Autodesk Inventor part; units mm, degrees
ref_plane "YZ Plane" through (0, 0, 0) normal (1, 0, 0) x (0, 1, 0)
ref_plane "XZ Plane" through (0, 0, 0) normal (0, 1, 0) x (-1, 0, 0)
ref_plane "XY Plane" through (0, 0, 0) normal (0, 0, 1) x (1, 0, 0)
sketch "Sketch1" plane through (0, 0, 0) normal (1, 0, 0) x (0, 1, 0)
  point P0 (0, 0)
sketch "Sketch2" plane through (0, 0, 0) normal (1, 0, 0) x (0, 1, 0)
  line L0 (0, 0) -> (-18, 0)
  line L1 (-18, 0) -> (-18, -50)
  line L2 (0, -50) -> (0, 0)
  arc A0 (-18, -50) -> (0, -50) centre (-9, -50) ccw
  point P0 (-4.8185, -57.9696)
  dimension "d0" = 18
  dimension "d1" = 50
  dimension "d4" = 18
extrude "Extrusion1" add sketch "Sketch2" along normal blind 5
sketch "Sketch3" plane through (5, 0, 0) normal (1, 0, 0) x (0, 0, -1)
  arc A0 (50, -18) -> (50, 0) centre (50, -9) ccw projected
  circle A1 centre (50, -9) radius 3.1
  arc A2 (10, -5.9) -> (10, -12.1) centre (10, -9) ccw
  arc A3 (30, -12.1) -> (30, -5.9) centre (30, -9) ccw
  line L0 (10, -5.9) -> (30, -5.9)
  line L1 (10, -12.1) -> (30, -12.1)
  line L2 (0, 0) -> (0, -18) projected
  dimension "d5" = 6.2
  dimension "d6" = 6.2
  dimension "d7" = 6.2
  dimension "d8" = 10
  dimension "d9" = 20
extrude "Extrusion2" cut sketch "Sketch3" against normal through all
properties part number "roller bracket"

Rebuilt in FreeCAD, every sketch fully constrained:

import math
import FreeCAD as App
import Part
import Sketcher

V = App.Vector
Q = App.Units.Quantity

doc = App.newDocument("Part")
body = doc.addObject("PartDesign::Body", "Body")

# Sketch on YZ plane
sketch1 = body.newObject("Sketcher::SketchObject", "Sketch")
sketch1.AttachmentSupport = (doc.getObject("YZ_Plane"), [""])
sketch1.MapMode = "FlatFace"
sketch1.addGeometry([
    Part.LineSegment(V(0, -50, 0), V(0, 0, 0)),
    Part.LineSegment(V(0, 0, 0), V(-18, 0, 0)),
    Part.LineSegment(V(-18, 0, 0), V(-18, -50, 0)),
    Part.ArcOfCircle(Part.Circle(V(-9, -50, 0), V(0, 0, 1), 9), math.radians(180), math.radians(360)),
], False)
sketch1.addConstraint([
    Sketcher.Constraint("Coincident", 0, 2, 1, 1),
    Sketcher.Constraint("Coincident", 1, 2, 2, 1),
    Sketcher.Constraint("Tangent", 2, 2, 3, 1),
    Sketcher.Constraint("Tangent", 3, 2, 0, 1),
    Sketcher.Constraint("Vertical", 0),
    Sketcher.Constraint("Horizontal", 1),
    Sketcher.Constraint("Vertical", 2),
    Sketcher.Constraint("Coincident", 0, 2, -1, 1),
    Sketcher.Constraint("Radius", 3, Q("9 mm")),
    Sketcher.Constraint("DistanceY", 0, 1, 0, 2, Q("50 mm")),
])
pad1 = body.newObject("PartDesign::Pad", "Pad")
pad1.Profile = sketch1
pad1.Length = 5

# Sketch on YZ plane
sketch2 = body.newObject("Sketcher::SketchObject", "Sketch001")
sketch2.AttachmentSupport = (doc.getObject("YZ_Plane"), [""])
sketch2.MapMode = "FlatFace"
sketch2.AttachmentOffset = App.Placement(V(0, 0, 5), App.Rotation())
sketch2.addGeometry([
    Part.Circle(V(-9, -50, 0), V(0, 0, 1), 3.1),  # 0
    Part.LineSegment(V(-5.9, -30, 0), V(-5.9, -10, 0)),  # 1
    Part.ArcOfCircle(Part.Circle(V(-9, -10, 0), V(0, 0, 1), 3.1), math.radians(0), math.radians(180)),  # 2
    Part.LineSegment(V(-12.1, -10, 0), V(-12.1, -30, 0)),  # 3
    Part.ArcOfCircle(Part.Circle(V(-9, -30, 0), V(0, 0, 1), 3.1), math.radians(180), math.radians(360)),  # 4
], False)
sketch2.addConstraint([
    Sketcher.Constraint("Tangent", 1, 2, 2, 1),
    Sketcher.Constraint("Tangent", 2, 2, 3, 1),
    Sketcher.Constraint("Tangent", 3, 2, 4, 1),
    Sketcher.Constraint("Tangent", 4, 2, 1, 1),
    Sketcher.Constraint("Vertical", 1),
    Sketcher.Constraint("Vertical", 3),
    Sketcher.Constraint("Equal", 0, 2),
    Sketcher.Constraint("Vertical", 0, 3, 2, 3),
    Sketcher.Constraint("Diameter", 0, Q("6.2 mm")),
    Sketcher.Constraint("DistanceY", 1, 1, 1, 2, Q("20 mm")),
    Sketcher.Constraint("DistanceY", 2, 3, -1, 1, Q("10 mm")),
    Sketcher.Constraint("DistanceY", 0, 3, 4, 3, Q("20 mm")),
    Sketcher.Constraint("DistanceX", 0, 3, -1, 1, Q("9 mm")),
])
pocket1 = body.newObject("PartDesign::Pocket", "Pocket")
pocket1.Profile = sketch2
pocket1.Type = "ThroughAll"

doc.recompute()
